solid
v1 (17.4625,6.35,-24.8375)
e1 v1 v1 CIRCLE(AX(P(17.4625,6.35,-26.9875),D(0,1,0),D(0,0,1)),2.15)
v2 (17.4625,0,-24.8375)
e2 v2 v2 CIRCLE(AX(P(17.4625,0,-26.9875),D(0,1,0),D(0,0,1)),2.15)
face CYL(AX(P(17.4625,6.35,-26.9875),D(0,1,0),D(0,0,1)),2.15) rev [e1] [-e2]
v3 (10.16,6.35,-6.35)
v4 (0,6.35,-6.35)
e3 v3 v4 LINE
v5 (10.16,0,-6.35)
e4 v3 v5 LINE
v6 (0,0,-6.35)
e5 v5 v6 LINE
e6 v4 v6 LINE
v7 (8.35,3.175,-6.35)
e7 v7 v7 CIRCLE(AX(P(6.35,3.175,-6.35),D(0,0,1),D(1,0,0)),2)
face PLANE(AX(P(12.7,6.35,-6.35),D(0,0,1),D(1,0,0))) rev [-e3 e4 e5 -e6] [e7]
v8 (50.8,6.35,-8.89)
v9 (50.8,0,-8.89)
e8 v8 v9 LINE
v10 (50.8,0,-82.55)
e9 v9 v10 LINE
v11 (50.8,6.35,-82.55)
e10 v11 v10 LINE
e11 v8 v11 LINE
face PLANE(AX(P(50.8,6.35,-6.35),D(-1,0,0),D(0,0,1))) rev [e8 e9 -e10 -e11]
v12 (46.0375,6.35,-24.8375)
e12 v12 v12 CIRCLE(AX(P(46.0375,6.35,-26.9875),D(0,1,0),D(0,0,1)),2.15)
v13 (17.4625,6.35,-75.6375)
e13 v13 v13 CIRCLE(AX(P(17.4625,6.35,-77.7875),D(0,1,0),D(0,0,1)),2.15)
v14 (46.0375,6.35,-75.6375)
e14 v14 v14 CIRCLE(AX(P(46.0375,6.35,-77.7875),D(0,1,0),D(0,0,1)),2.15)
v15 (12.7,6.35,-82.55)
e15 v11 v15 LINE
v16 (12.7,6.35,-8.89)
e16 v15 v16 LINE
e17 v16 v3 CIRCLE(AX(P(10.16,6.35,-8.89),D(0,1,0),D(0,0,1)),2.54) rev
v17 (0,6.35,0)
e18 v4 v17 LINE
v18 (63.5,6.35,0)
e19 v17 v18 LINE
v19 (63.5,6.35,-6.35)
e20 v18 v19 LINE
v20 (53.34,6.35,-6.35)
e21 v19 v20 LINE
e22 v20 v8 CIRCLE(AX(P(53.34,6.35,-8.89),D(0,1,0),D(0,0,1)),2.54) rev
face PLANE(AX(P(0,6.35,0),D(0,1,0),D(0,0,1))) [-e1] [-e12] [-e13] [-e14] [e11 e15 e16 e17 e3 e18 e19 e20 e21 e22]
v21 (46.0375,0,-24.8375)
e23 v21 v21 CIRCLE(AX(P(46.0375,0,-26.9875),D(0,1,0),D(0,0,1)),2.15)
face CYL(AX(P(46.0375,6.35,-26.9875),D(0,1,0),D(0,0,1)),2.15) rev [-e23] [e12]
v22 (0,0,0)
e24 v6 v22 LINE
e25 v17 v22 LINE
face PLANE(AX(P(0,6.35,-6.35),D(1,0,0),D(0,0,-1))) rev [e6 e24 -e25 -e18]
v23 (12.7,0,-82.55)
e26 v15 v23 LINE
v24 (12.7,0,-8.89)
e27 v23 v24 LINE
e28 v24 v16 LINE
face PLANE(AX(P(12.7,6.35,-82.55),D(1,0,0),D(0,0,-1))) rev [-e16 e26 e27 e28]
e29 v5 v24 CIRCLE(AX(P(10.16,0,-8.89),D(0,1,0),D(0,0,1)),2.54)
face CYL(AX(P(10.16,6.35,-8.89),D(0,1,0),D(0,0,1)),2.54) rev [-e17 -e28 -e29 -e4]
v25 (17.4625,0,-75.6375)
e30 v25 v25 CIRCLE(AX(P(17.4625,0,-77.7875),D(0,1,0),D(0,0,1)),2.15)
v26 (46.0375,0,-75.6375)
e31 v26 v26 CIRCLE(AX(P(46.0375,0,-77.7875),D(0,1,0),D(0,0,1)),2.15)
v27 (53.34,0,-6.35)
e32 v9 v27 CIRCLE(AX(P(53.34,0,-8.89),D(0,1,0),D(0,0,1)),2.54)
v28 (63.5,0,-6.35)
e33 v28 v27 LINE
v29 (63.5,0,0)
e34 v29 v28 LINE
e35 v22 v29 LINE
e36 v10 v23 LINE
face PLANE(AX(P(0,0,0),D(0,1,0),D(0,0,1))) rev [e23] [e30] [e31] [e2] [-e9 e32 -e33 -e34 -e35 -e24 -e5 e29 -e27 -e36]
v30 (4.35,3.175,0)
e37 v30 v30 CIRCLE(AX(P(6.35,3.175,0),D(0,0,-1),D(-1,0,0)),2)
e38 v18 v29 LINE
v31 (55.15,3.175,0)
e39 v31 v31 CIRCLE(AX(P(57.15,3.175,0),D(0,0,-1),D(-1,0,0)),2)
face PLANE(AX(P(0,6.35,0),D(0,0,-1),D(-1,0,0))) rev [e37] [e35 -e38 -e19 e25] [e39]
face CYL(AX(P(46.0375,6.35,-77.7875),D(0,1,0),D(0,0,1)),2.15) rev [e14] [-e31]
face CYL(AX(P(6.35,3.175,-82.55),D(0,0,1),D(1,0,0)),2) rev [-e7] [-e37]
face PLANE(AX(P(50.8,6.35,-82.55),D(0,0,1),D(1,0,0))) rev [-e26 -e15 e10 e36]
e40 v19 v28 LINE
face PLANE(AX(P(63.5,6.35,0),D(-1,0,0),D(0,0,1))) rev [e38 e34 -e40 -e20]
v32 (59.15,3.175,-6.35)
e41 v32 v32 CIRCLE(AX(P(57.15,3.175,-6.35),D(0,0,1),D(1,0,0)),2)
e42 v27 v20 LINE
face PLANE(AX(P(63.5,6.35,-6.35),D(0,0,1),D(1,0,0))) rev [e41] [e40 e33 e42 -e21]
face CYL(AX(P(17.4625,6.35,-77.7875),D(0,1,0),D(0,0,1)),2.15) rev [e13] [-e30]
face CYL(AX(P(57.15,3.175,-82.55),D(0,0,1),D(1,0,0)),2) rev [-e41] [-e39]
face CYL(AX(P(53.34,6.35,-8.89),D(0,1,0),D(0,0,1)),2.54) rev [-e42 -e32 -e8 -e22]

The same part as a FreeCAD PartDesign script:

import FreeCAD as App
import Part
import Sketcher
from FreeCAD import Vector
Q = App.Units.Quantity


def edges_at(feature, points):
    """Names of the edges that pass closest to the given points."""
    edges = feature.Shape.Edges
    near = lambda p: min(range(len(edges)), key=lambda i: edges[i].distToShape(Part.Vertex(*p))[0])
    return sorted({f"Edge{near(p) + 1}" for p in points})


def add_polygon(sketch, points):
    """Adds a closed chain of lines whose ends are joined by coincident constraints."""
    first, n = sketch.GeometryCount, len(points)
    for a, b in zip(points, points[1:] + points[:1]):
        sketch.addGeometry(Part.LineSegment(App.Vector(*a, 0), App.Vector(*b, 0)), False)
    for i in range(n):
        sketch.addConstraint(Sketcher.Constraint("Coincident", first + i, 2, first + (i + 1) % n, 1))

doc = App.newDocument("Part")
body = doc.addObject("PartDesign::Body", "Body")

# Sketch on XZ plane
sketch1 = body.newObject("Sketcher::SketchObject", "Sketch")
sketch1.AttachmentSupport = (doc.getObject("XZ_Plane"), [""])
sketch1.MapMode = "FlatFace"
add_polygon(sketch1, [(0, 0), (64, 0), (64, -6), (51, -6), (51, -83), (13, -83), (13, -6), (0, -6)])  # lines 0-7
sketch1.addConstraint([
    Sketcher.Constraint("Horizontal", 0),
    Sketcher.Constraint("Vertical", 1),
    Sketcher.Constraint("Horizontal", 2),
    Sketcher.Constraint("Vertical", 3),
    Sketcher.Constraint("Horizontal", 4),
    Sketcher.Constraint("Vertical", 5),
    Sketcher.Constraint("Horizontal", 6),
    Sketcher.Constraint("Vertical", 7),
    Sketcher.Constraint("Coincident", 7, 2, -1, 1),
    Sketcher.Constraint("Horizontal", 2, 2, 5, 2),
    Sketcher.Constraint("Equal", 2, 6),
    Sketcher.Constraint("DistanceY", 3, 2, 3, 1, Q("3 in")),
    Sketcher.Constraint("DistanceX", 0, 1, 0, 2, Q("2.5 in")),
    Sketcher.Constraint("DistanceX", 2, 2, 2, 1, Q("0.5 in")),
    Sketcher.Constraint("DistanceY", 1, 2, 1, 1, Q("0.25 in")),
])
pad1 = body.newObject("PartDesign::Pad", "Pad")
pad1.Profile = sketch1
pad1.Length = Q("0.25 in")
pad1.Reversed = True

# Sketch on XY plane
sketch2 = body.newObject("Sketcher::SketchObject", "Sketch001")
sketch2.AttachmentSupport = (doc.getObject("XY_Plane"), [""])
sketch2.MapMode = "FlatFace"
sketch2.addGeometry([
    Part.Circle(Vector(6.3, 3.2, 0), Vector(0, 0, 1), 2),
    Part.Circle(Vector(57.1, 3.2, 0), Vector(0, 0, 1), 2),
], False)
sketch2.addConstraint([
    Sketcher.Constraint("Equal", 0, 1),
    Sketcher.Constraint("Horizontal", 0, 3, 1, 3),
    Sketcher.Constraint("DistanceX", 0, 3, 1, 3, Q("2 in")),
    Sketcher.Constraint("Diameter", 0, Q("4 mm")),
    Sketcher.Constraint("DistanceX", -1, 1, 0, 3, Q("0.25 in")),
    Sketcher.Constraint("DistanceY", -1, 1, 0, 3, Q("0.125 in")),
])
pocket1 = body.newObject("PartDesign::Pocket", "Pocket")
pocket1.Profile = sketch2
pocket1.Type = "ThroughAll"
pocket1.Midplane = True
doc.recompute()

fillet = body.newObject("PartDesign::Fillet", "Fillet")
fillet.Base = (pocket1, edges_at(pocket1, [(12.7, 3.175, -6.35), (50.8, 3.175, -6.35)]))
fillet.Radius = Q("0.1 in")

# Sketch on XZ plane
sketch3 = body.newObject("Sketcher::SketchObject", "Sketch002")
sketch3.AttachmentSupport = (doc.getObject("XZ_Plane"), [""])
sketch3.MapMode = "FlatFace"
sketch3.AttachmentOffset = App.Placement(Vector(0, 0, -0.25 * 25.4), App.Rotation())
sketch3.addGeometry([
    Part.Circle(Vector(17.5, -77.8, 0), Vector(0, 0, 1), 2.1),
    Part.Circle(Vector(46, -77.8, 0), Vector(0, 0, 1), 2.1),
    Part.Circle(Vector(46, -27, 0), Vector(0, 0, 1), 2.1),
    Part.Circle(Vector(17.5, -27, 0), Vector(0, 0, 1), 2.1),
], False)
sketch3.addConstraint([
    Sketcher.Constraint("Equal", 0, 1),
    Sketcher.Constraint("Equal", 1, 2),
    Sketcher.Constraint("Equal", 2, 3),
    Sketcher.Constraint("Horizontal", 0, 3, 1, 3),
    Sketcher.Constraint("Horizontal", 2, 3, 3, 3),
    Sketcher.Constraint("Vertical", 1, 3, 2, 3),
    Sketcher.Constraint("Vertical", 0, 3, 3, 3),
    Sketcher.Constraint("DistanceY", 1, 3, 2, 3, Q("2 in")),
    Sketcher.Constraint("Diameter", 0, Q("4.3 mm")),
    Sketcher.Constraint("DistanceX", -1, 1, 0, 3, Q("0.6875 in")),
    Sketcher.Constraint("DistanceY", 0, 3, -1, 1, Q("3.0625 in")),
    Sketcher.Constraint("DistanceX", -1, 1, 1, 3, Q("1.8125 in")),
])
doc.recompute()
hole = body.newObject("PartDesign::Hole", "Hole")
hole.Profile = sketch3
hole.ThreadType = "None"
hole.Diameter = 4.3
hole.DepthType = "ThroughAll"
hole.Reversed = True

doc.recompute()
